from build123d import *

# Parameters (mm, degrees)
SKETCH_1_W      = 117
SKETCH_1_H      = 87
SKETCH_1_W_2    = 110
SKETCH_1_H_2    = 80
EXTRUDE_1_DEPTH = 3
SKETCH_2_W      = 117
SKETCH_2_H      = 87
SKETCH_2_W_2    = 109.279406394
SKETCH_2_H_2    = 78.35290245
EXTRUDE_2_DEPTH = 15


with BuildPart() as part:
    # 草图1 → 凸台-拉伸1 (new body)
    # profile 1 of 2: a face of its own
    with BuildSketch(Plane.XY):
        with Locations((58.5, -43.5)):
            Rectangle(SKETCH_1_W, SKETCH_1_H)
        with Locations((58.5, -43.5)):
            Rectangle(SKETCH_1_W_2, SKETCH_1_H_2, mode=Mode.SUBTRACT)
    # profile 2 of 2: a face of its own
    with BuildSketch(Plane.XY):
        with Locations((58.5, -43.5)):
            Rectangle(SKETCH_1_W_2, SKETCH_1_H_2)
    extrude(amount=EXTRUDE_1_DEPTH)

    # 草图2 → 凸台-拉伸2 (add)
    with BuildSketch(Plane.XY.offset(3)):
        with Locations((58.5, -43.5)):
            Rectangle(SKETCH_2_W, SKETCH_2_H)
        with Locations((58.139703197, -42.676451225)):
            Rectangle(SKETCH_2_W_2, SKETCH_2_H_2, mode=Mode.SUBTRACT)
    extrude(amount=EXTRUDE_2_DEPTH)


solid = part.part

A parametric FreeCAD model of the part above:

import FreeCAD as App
import Part
import Sketcher

V = App.Vector


def add_polygon(sketch, points):
    """Adds a closed chain of lines whose ends are joined by coincident constraints."""
    first, n = sketch.GeometryCount, len(points)
    for a, b in zip(points, points[1:] + points[:1]):
        sketch.addGeometry(Part.LineSegment(App.Vector(*a, 0), App.Vector(*b, 0)), False)
    for i in range(n):
        sketch.addConstraint(Sketcher.Constraint("Coincident", first + i, 2, first + (i + 1) % n, 1))

doc = App.newDocument("Part")
body = doc.addObject("PartDesign::Body", "Body")

# Sketch on XY plane
sketch1 = doc.addObject("Sketcher::SketchObject", "Sketch")
body.addObject(sketch1)
sketch1.AttachmentSupport = (doc.XY_Plane, [""])
sketch1.MapMode = "FlatFace"
add_polygon(sketch1, [(0, 0), (0, -87), (117, -87), (117, 0)])  # lines 0-3
sketch1.addConstraint([
    Sketcher.Constraint("Vertical", 0),
    Sketcher.Constraint("Horizontal", 1),
    Sketcher.Constraint("Vertical", 2),
    Sketcher.Constraint("Horizontal", 3),
    Sketcher.Constraint("Coincident", 3, 2, -1, 1),
    Sketcher.Constraint("DistanceX", 1, 1, 1, 2, 117.0),
    Sketcher.Constraint("DistanceY", 0, 2, 0, 1, 87.0),
])
pad1 = doc.addObject("PartDesign::Pad", "Pad")
body.addObject(pad1)
pad1.Profile = sketch1
pad1.Length = 3

# Sketch on XY plane
sketch2 = doc.addObject("Sketcher::SketchObject", "Sketch001")
body.addObject(sketch2)
sketch2.AttachmentSupport = (doc.XY_Plane, [""])
sketch2.MapMode = "FlatFace"
sketch2.AttachmentOffset = App.Placement(V(0, 0, 3), App.Rotation())
add_polygon(sketch2, [(0, 0), (0, -87), (117, -87), (117, 0)])  # lines 0-3
add_polygon(sketch2, [(113, -82), (4, -82), (4, -4), (113, -4)])  # lines 4-7
sketch2.addConstraint([
    Sketcher.Constraint("Vertical", 0),
    Sketcher.Constraint("Horizontal", 1),
    Sketcher.Constraint("Vertical", 2),
    Sketcher.Constraint("Horizontal", 3),
    Sketcher.Constraint("Horizontal", 4),
    Sketcher.Constraint("Vertical", 5),
    Sketcher.Constraint("Horizontal", 6),
    Sketcher.Constraint("Vertical", 7),
    Sketcher.Constraint("Coincident", 3, 2, -1, 1),
    Sketcher.Constraint("DistanceX", 1, 1, 1, 2, 117.0),
    Sketcher.Constraint("DistanceY", 0, 2, 0, 1, 87.0),
    Sketcher.Constraint("DistanceX", -1, 1, 4, 2, 3.5),
    Sketcher.Constraint("DistanceY", 5, 2, -1, 1, 3.5),
    Sketcher.Constraint("DistanceX", 4, 2, 4, 1, 109.279406),
    Sketcher.Constraint("DistanceY", 5, 1, 5, 2, 78.352902),
])
pad2 = doc.addObject("PartDesign::Pad", "Pad001")
body.addObject(pad2)
pad2.Profile = sketch2
pad2.Length = 15

doc.recompute()
